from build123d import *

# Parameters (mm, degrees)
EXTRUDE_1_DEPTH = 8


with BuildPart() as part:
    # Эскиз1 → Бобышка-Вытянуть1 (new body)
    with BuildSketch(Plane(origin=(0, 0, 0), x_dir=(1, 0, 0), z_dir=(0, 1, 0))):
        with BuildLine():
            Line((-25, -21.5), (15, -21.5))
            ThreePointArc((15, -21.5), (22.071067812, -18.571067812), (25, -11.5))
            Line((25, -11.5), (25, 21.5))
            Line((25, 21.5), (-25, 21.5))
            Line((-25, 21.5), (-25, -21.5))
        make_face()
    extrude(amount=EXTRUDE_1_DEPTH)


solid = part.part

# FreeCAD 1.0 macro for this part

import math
import FreeCAD as App
import Part
import Sketcher
from FreeCAD import Vector
Q = App.Units.Quantity

doc = App.newDocument("Part")
body = doc.addObject("PartDesign::Body", "Body")

# Sketch on XZ plane
sketch1 = body.newObject("Sketcher::SketchObject", "Sketch")
sketch1.AttachmentSupport = (doc.getObject("XZ_Plane"), [""])
sketch1.MapMode = "FlatFace"
sketch1.addGeometry(Part.LineSegment(Vector(-25, 22, 0), Vector(15, 22, 0)), False)
sketch1.addGeometry(Part.ArcOfCircle(Part.Circle(Vector(15, 12, 0), Vector(0, 0, 1), 10), math.radians(0), math.radians(90)), False)
sketch1.addGeometry(Part.LineSegment(Vector(25, 12, 0), Vector(25, -22, 0)), False)
sketch1.addGeometry(Part.LineSegment(Vector(25, -22, 0), Vector(-25, -22, 0)), False)
sketch1.addGeometry(Part.LineSegment(Vector(-25, -22, 0), Vector(-25, 22, 0)), False)
sketch1.addConstraint(Sketcher.Constraint("Tangent", 0, 2, 1, 2))
sketch1.addConstraint(Sketcher.Constraint("Tangent", 1, 1, 2, 1))
sketch1.addConstraint(Sketcher.Constraint("Coincident", 2, 2, 3, 1))
sketch1.addConstraint(Sketcher.Constraint("Coincident", 3, 2, 4, 1))
sketch1.addConstraint(Sketcher.Constraint("Coincident", 4, 2, 0, 1))
sketch1.addConstraint(Sketcher.Constraint("Horizontal", 0))
sketch1.addConstraint(Sketcher.Constraint("Vertical", 2))
sketch1.addConstraint(Sketcher.Constraint("Horizontal", 3))
sketch1.addConstraint(Sketcher.Constraint("Vertical", 4))
sketch1.addConstraint(Sketcher.Constraint("Symmetric", 2, 2, 4, 2, -1, 1))
sketch1.addConstraint(Sketcher.Constraint("Radius", 1, Q("10 mm")))
sketch1.addConstraint(Sketcher.Constraint("DistanceX", 0, 1, 0, 2, Q("40 mm")))
sketch1.addConstraint(Sketcher.Constraint("DistanceY", 2, 2, 2, 1, Q("33 mm")))
pad1 = body.newObject("PartDesign::Pad", "Pad")
pad1.Profile = sketch1
pad1.Length = 8
pad1.Reversed = True

doc.recompute()
